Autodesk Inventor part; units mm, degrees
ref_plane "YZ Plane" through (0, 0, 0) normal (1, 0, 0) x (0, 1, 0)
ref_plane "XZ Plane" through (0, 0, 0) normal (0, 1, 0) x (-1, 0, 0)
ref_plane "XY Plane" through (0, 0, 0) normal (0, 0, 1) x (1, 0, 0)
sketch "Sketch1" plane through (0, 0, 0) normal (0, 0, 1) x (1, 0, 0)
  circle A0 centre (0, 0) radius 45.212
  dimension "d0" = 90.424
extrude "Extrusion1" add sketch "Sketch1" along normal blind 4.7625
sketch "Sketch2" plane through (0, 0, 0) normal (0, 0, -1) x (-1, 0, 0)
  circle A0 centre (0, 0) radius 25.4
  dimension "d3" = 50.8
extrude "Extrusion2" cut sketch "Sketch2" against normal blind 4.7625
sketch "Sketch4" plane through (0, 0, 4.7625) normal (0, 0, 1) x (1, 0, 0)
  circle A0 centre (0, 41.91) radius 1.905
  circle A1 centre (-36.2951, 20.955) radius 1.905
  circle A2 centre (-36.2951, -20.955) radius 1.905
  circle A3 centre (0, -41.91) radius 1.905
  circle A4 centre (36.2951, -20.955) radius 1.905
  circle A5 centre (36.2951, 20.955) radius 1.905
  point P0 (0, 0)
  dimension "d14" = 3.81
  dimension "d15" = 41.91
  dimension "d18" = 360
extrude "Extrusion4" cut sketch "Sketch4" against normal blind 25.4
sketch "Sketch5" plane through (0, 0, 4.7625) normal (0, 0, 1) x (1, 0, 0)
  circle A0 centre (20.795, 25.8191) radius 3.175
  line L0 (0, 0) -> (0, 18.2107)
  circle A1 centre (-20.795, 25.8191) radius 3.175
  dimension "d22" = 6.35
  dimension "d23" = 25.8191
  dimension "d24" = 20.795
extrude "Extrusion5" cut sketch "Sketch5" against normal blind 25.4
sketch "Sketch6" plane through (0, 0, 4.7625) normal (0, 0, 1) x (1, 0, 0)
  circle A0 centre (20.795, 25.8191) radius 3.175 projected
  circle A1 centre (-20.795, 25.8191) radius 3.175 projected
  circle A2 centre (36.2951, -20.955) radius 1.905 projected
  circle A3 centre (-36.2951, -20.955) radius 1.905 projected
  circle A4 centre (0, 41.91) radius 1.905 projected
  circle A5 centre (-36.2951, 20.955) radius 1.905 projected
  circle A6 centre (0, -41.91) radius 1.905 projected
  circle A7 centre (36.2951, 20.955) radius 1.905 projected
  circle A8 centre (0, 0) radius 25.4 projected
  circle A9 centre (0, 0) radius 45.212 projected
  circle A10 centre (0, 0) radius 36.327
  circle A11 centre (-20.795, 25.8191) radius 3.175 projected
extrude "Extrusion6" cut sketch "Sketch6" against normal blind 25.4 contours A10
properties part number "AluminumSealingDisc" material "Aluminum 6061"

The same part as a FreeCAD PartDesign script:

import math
import FreeCAD as App
import Part
import Sketcher

V = App.Vector
Q = App.Units.Quantity

doc = App.newDocument("Part")
body = doc.addObject("PartDesign::Body", "Body")

# Sketch on XY plane
sketch1 = body.newObject("Sketcher::SketchObject", "Sketch")
sketch1.AttachmentSupport = (doc.getObject("XY_Plane"), [""])
sketch1.MapMode = "FlatFace"
sketch1.addGeometry(Part.Circle(V(0, 0, 0), V(0, 0, 1), 45.212), False)
sketch1.addConstraint([
    Sketcher.Constraint("Coincident", 0, 3, -1, 1),
    Sketcher.Constraint("Diameter", 0, Q("3.56 in")),
])
pad1 = body.newObject("PartDesign::Pad", "Pad")
pad1.Profile = sketch1
pad1.Length = Q("0.1875 in")

# Sketch on XY plane
sketch2 = body.newObject("Sketcher::SketchObject", "Sketch001")
sketch2.AttachmentSupport = (doc.getObject("XY_Plane"), [""])
sketch2.MapMode = "FlatFace"
sketch2.addGeometry(Part.Circle(V(0, 0, 0), V(0, 0, 1), 25.4), False)
sketch2.addConstraint([
    Sketcher.Constraint("Coincident", 0, 3, -1, 1),
    Sketcher.Constraint("Diameter", 0, Q("2 in")),
])
pocket1 = body.newObject("PartDesign::Pocket", "Pocket")
pocket1.Profile = sketch2
pocket1.Length = Q("0.1875 in")
pocket1.Reversed = True

# Sketch on XY plane
sketch3 = body.newObject("Sketcher::SketchObject", "Sketch002")
sketch3.AttachmentSupport = (doc.getObject("XY_Plane"), [""])
sketch3.MapMode = "FlatFace"
sketch3.AttachmentOffset = App.Placement(V(0, 0, 0.1875 * 25.4), App.Rotation())
sketch3.addGeometry([
    Part.Circle(V(0, 41.91, 0), V(0, 0, 1), 1.905),  # 0
    Part.Circle(V(-36.2951, 20.955, 0), V(0, 0, 1), 1.905),  # 1
    Part.Circle(V(-36.2951, -20.955, 0), V(0, 0, 1), 1.905),  # 2
    Part.Circle(V(0, -41.91, 0), V(0, 0, 1), 1.905),  # 3
    Part.Circle(V(36.2951, -20.955, 0), V(0, 0, 1), 1.905),  # 4
    Part.Circle(V(36.2951, 20.955, 0), V(0, 0, 1), 1.905),  # 5
], False)
sketch3.addConstraint([
    Sketcher.Constraint("Equal", 0, 1),
    Sketcher.Constraint("Equal", 1, 2),
    Sketcher.Constraint("Equal", 2, 3),
    Sketcher.Constraint("Equal", 3, 4),
    Sketcher.Constraint("Equal", 4, 5),
    Sketcher.Constraint("Symmetric", 0, 3, 3, 3, -1, 1),
    Sketcher.Constraint("Symmetric", 1, 3, 4, 3, -1, 1),
    Sketcher.Constraint("Symmetric", 2, 3, 5, 3, -1, 1),
    Sketcher.Constraint("Symmetric", 2, 3, 4, 3, -2),
    Sketcher.Constraint("PointOnObject", 0, 3, -2),
    Sketcher.Constraint("Diameter", 0, Q("0.15 in")),
    Sketcher.Constraint("DistanceY", -1, 1, 0, 3, Q("1.65 in")),
    Sketcher.Constraint("DistanceY", 2, 3, 1, 3, Q("1.65 in")),
    Sketcher.Constraint("DistanceX", 1, 3, -1, 1, 36.295),
])
pocket2 = body.newObject("PartDesign::Pocket", "Pocket001")
pocket2.Profile = sketch3
pocket2.Length = Q("1 in")

# Sketch on XY plane
sketch4 = body.newObject("Sketcher::SketchObject", "Sketch003")
sketch4.AttachmentSupport = (doc.getObject("XY_Plane"), [""])
sketch4.MapMode = "FlatFace"
sketch4.AttachmentOffset = App.Placement(V(0, 0, 0.1875 * 25.4), App.Rotation())
sketch4.addGeometry([
    Part.Circle(V(20.795, 25.8191, 0), V(0, 0, 1), 3.175),
    Part.Circle(V(-20.795, 25.8191, 0), V(0, 0, 1), 3.175),
], False)
sketch4.addConstraint([
    Sketcher.Constraint("Equal", 0, 1),
    Sketcher.Constraint("Symmetric", 0, 3, 1, 3, -2),
    Sketcher.Constraint("Diameter", 0, Q("0.25 in")),
    Sketcher.Constraint("DistanceX", -1, 1, 0, 3, Q("0.8187 in")),
    Sketcher.Constraint("DistanceY", -1, 1, 0, 3, Q("1.0165 in")),
])
pocket3 = body.newObject("PartDesign::Pocket", "Pocket002")
pocket3.Profile = sketch4
pocket3.Length = Q("1 in")

# Sketch on XY plane
sketch5 = body.newObject("Sketcher::SketchObject", "Sketch004")
sketch5.AttachmentSupport = (doc.getObject("XY_Plane"), [""])
sketch5.MapMode = "FlatFace"
sketch5.AttachmentOffset = App.Placement(V(0, 0, 0.1875 * 25.4), App.Rotation())
sketch5.addGeometry([
    Part.ArcOfCircle(Part.Circle(V(0, 0, 0), V(0, 0, 1), 36.327), math.radians(128.848368), math.radians(411.151632)),  # 0
    Part.ArcOfCircle(Part.Circle(V(0, 0, 0), V(0, 0, 1), 36.327), math.radians(51.151632), math.radians(128.848368)),  # 1
    Part.Circle(V(-20.795, 25.8191, 0), V(0, 0, 1), 3.175),  # 2
    Part.Circle(V(0, 0, 0), V(0, 0, 1), 25.4),  # 3
    Part.Circle(V(20.795, 25.8191, 0), V(0, 0, 1), 3.175),  # 4
], False)
sketch5.addConstraint([
    Sketcher.Constraint("Tangent", 0, 1, 1, 2),
    Sketcher.Constraint("Coincident", 1, 1, 0, 2),
    Sketcher.Constraint("Coincident", 0, 3, -1, 1),
    Sketcher.Constraint("Coincident", 3, 3, -1, 1),
    Sketcher.Constraint("Equal", 2, 4),
    Sketcher.Constraint("Symmetric", 2, 3, 4, 3, -2),
    Sketcher.Constraint("Horizontal", 0, 1, 1, 1),
    Sketcher.Constraint("Diameter", 3, Q("2 in")),
    Sketcher.Constraint("Diameter", 2, Q("0.25 in")),
    Sketcher.Constraint("Radius", 0, Q("1.4302 in")),
    Sketcher.Constraint("DistanceX", 2, 3, -1, 1, Q("0.8187 in")),
    Sketcher.Constraint("DistanceY", -1, 1, 2, 3, Q("1.0165 in")),
    Sketcher.Constraint("DistanceX", 0, 1, -1, 1, Q("0.8971 in")),
])
pocket4 = body.newObject("PartDesign::Pocket", "Pocket003")
pocket4.Profile = sketch5
pocket4.Length = Q("1 in")

doc.recompute()
